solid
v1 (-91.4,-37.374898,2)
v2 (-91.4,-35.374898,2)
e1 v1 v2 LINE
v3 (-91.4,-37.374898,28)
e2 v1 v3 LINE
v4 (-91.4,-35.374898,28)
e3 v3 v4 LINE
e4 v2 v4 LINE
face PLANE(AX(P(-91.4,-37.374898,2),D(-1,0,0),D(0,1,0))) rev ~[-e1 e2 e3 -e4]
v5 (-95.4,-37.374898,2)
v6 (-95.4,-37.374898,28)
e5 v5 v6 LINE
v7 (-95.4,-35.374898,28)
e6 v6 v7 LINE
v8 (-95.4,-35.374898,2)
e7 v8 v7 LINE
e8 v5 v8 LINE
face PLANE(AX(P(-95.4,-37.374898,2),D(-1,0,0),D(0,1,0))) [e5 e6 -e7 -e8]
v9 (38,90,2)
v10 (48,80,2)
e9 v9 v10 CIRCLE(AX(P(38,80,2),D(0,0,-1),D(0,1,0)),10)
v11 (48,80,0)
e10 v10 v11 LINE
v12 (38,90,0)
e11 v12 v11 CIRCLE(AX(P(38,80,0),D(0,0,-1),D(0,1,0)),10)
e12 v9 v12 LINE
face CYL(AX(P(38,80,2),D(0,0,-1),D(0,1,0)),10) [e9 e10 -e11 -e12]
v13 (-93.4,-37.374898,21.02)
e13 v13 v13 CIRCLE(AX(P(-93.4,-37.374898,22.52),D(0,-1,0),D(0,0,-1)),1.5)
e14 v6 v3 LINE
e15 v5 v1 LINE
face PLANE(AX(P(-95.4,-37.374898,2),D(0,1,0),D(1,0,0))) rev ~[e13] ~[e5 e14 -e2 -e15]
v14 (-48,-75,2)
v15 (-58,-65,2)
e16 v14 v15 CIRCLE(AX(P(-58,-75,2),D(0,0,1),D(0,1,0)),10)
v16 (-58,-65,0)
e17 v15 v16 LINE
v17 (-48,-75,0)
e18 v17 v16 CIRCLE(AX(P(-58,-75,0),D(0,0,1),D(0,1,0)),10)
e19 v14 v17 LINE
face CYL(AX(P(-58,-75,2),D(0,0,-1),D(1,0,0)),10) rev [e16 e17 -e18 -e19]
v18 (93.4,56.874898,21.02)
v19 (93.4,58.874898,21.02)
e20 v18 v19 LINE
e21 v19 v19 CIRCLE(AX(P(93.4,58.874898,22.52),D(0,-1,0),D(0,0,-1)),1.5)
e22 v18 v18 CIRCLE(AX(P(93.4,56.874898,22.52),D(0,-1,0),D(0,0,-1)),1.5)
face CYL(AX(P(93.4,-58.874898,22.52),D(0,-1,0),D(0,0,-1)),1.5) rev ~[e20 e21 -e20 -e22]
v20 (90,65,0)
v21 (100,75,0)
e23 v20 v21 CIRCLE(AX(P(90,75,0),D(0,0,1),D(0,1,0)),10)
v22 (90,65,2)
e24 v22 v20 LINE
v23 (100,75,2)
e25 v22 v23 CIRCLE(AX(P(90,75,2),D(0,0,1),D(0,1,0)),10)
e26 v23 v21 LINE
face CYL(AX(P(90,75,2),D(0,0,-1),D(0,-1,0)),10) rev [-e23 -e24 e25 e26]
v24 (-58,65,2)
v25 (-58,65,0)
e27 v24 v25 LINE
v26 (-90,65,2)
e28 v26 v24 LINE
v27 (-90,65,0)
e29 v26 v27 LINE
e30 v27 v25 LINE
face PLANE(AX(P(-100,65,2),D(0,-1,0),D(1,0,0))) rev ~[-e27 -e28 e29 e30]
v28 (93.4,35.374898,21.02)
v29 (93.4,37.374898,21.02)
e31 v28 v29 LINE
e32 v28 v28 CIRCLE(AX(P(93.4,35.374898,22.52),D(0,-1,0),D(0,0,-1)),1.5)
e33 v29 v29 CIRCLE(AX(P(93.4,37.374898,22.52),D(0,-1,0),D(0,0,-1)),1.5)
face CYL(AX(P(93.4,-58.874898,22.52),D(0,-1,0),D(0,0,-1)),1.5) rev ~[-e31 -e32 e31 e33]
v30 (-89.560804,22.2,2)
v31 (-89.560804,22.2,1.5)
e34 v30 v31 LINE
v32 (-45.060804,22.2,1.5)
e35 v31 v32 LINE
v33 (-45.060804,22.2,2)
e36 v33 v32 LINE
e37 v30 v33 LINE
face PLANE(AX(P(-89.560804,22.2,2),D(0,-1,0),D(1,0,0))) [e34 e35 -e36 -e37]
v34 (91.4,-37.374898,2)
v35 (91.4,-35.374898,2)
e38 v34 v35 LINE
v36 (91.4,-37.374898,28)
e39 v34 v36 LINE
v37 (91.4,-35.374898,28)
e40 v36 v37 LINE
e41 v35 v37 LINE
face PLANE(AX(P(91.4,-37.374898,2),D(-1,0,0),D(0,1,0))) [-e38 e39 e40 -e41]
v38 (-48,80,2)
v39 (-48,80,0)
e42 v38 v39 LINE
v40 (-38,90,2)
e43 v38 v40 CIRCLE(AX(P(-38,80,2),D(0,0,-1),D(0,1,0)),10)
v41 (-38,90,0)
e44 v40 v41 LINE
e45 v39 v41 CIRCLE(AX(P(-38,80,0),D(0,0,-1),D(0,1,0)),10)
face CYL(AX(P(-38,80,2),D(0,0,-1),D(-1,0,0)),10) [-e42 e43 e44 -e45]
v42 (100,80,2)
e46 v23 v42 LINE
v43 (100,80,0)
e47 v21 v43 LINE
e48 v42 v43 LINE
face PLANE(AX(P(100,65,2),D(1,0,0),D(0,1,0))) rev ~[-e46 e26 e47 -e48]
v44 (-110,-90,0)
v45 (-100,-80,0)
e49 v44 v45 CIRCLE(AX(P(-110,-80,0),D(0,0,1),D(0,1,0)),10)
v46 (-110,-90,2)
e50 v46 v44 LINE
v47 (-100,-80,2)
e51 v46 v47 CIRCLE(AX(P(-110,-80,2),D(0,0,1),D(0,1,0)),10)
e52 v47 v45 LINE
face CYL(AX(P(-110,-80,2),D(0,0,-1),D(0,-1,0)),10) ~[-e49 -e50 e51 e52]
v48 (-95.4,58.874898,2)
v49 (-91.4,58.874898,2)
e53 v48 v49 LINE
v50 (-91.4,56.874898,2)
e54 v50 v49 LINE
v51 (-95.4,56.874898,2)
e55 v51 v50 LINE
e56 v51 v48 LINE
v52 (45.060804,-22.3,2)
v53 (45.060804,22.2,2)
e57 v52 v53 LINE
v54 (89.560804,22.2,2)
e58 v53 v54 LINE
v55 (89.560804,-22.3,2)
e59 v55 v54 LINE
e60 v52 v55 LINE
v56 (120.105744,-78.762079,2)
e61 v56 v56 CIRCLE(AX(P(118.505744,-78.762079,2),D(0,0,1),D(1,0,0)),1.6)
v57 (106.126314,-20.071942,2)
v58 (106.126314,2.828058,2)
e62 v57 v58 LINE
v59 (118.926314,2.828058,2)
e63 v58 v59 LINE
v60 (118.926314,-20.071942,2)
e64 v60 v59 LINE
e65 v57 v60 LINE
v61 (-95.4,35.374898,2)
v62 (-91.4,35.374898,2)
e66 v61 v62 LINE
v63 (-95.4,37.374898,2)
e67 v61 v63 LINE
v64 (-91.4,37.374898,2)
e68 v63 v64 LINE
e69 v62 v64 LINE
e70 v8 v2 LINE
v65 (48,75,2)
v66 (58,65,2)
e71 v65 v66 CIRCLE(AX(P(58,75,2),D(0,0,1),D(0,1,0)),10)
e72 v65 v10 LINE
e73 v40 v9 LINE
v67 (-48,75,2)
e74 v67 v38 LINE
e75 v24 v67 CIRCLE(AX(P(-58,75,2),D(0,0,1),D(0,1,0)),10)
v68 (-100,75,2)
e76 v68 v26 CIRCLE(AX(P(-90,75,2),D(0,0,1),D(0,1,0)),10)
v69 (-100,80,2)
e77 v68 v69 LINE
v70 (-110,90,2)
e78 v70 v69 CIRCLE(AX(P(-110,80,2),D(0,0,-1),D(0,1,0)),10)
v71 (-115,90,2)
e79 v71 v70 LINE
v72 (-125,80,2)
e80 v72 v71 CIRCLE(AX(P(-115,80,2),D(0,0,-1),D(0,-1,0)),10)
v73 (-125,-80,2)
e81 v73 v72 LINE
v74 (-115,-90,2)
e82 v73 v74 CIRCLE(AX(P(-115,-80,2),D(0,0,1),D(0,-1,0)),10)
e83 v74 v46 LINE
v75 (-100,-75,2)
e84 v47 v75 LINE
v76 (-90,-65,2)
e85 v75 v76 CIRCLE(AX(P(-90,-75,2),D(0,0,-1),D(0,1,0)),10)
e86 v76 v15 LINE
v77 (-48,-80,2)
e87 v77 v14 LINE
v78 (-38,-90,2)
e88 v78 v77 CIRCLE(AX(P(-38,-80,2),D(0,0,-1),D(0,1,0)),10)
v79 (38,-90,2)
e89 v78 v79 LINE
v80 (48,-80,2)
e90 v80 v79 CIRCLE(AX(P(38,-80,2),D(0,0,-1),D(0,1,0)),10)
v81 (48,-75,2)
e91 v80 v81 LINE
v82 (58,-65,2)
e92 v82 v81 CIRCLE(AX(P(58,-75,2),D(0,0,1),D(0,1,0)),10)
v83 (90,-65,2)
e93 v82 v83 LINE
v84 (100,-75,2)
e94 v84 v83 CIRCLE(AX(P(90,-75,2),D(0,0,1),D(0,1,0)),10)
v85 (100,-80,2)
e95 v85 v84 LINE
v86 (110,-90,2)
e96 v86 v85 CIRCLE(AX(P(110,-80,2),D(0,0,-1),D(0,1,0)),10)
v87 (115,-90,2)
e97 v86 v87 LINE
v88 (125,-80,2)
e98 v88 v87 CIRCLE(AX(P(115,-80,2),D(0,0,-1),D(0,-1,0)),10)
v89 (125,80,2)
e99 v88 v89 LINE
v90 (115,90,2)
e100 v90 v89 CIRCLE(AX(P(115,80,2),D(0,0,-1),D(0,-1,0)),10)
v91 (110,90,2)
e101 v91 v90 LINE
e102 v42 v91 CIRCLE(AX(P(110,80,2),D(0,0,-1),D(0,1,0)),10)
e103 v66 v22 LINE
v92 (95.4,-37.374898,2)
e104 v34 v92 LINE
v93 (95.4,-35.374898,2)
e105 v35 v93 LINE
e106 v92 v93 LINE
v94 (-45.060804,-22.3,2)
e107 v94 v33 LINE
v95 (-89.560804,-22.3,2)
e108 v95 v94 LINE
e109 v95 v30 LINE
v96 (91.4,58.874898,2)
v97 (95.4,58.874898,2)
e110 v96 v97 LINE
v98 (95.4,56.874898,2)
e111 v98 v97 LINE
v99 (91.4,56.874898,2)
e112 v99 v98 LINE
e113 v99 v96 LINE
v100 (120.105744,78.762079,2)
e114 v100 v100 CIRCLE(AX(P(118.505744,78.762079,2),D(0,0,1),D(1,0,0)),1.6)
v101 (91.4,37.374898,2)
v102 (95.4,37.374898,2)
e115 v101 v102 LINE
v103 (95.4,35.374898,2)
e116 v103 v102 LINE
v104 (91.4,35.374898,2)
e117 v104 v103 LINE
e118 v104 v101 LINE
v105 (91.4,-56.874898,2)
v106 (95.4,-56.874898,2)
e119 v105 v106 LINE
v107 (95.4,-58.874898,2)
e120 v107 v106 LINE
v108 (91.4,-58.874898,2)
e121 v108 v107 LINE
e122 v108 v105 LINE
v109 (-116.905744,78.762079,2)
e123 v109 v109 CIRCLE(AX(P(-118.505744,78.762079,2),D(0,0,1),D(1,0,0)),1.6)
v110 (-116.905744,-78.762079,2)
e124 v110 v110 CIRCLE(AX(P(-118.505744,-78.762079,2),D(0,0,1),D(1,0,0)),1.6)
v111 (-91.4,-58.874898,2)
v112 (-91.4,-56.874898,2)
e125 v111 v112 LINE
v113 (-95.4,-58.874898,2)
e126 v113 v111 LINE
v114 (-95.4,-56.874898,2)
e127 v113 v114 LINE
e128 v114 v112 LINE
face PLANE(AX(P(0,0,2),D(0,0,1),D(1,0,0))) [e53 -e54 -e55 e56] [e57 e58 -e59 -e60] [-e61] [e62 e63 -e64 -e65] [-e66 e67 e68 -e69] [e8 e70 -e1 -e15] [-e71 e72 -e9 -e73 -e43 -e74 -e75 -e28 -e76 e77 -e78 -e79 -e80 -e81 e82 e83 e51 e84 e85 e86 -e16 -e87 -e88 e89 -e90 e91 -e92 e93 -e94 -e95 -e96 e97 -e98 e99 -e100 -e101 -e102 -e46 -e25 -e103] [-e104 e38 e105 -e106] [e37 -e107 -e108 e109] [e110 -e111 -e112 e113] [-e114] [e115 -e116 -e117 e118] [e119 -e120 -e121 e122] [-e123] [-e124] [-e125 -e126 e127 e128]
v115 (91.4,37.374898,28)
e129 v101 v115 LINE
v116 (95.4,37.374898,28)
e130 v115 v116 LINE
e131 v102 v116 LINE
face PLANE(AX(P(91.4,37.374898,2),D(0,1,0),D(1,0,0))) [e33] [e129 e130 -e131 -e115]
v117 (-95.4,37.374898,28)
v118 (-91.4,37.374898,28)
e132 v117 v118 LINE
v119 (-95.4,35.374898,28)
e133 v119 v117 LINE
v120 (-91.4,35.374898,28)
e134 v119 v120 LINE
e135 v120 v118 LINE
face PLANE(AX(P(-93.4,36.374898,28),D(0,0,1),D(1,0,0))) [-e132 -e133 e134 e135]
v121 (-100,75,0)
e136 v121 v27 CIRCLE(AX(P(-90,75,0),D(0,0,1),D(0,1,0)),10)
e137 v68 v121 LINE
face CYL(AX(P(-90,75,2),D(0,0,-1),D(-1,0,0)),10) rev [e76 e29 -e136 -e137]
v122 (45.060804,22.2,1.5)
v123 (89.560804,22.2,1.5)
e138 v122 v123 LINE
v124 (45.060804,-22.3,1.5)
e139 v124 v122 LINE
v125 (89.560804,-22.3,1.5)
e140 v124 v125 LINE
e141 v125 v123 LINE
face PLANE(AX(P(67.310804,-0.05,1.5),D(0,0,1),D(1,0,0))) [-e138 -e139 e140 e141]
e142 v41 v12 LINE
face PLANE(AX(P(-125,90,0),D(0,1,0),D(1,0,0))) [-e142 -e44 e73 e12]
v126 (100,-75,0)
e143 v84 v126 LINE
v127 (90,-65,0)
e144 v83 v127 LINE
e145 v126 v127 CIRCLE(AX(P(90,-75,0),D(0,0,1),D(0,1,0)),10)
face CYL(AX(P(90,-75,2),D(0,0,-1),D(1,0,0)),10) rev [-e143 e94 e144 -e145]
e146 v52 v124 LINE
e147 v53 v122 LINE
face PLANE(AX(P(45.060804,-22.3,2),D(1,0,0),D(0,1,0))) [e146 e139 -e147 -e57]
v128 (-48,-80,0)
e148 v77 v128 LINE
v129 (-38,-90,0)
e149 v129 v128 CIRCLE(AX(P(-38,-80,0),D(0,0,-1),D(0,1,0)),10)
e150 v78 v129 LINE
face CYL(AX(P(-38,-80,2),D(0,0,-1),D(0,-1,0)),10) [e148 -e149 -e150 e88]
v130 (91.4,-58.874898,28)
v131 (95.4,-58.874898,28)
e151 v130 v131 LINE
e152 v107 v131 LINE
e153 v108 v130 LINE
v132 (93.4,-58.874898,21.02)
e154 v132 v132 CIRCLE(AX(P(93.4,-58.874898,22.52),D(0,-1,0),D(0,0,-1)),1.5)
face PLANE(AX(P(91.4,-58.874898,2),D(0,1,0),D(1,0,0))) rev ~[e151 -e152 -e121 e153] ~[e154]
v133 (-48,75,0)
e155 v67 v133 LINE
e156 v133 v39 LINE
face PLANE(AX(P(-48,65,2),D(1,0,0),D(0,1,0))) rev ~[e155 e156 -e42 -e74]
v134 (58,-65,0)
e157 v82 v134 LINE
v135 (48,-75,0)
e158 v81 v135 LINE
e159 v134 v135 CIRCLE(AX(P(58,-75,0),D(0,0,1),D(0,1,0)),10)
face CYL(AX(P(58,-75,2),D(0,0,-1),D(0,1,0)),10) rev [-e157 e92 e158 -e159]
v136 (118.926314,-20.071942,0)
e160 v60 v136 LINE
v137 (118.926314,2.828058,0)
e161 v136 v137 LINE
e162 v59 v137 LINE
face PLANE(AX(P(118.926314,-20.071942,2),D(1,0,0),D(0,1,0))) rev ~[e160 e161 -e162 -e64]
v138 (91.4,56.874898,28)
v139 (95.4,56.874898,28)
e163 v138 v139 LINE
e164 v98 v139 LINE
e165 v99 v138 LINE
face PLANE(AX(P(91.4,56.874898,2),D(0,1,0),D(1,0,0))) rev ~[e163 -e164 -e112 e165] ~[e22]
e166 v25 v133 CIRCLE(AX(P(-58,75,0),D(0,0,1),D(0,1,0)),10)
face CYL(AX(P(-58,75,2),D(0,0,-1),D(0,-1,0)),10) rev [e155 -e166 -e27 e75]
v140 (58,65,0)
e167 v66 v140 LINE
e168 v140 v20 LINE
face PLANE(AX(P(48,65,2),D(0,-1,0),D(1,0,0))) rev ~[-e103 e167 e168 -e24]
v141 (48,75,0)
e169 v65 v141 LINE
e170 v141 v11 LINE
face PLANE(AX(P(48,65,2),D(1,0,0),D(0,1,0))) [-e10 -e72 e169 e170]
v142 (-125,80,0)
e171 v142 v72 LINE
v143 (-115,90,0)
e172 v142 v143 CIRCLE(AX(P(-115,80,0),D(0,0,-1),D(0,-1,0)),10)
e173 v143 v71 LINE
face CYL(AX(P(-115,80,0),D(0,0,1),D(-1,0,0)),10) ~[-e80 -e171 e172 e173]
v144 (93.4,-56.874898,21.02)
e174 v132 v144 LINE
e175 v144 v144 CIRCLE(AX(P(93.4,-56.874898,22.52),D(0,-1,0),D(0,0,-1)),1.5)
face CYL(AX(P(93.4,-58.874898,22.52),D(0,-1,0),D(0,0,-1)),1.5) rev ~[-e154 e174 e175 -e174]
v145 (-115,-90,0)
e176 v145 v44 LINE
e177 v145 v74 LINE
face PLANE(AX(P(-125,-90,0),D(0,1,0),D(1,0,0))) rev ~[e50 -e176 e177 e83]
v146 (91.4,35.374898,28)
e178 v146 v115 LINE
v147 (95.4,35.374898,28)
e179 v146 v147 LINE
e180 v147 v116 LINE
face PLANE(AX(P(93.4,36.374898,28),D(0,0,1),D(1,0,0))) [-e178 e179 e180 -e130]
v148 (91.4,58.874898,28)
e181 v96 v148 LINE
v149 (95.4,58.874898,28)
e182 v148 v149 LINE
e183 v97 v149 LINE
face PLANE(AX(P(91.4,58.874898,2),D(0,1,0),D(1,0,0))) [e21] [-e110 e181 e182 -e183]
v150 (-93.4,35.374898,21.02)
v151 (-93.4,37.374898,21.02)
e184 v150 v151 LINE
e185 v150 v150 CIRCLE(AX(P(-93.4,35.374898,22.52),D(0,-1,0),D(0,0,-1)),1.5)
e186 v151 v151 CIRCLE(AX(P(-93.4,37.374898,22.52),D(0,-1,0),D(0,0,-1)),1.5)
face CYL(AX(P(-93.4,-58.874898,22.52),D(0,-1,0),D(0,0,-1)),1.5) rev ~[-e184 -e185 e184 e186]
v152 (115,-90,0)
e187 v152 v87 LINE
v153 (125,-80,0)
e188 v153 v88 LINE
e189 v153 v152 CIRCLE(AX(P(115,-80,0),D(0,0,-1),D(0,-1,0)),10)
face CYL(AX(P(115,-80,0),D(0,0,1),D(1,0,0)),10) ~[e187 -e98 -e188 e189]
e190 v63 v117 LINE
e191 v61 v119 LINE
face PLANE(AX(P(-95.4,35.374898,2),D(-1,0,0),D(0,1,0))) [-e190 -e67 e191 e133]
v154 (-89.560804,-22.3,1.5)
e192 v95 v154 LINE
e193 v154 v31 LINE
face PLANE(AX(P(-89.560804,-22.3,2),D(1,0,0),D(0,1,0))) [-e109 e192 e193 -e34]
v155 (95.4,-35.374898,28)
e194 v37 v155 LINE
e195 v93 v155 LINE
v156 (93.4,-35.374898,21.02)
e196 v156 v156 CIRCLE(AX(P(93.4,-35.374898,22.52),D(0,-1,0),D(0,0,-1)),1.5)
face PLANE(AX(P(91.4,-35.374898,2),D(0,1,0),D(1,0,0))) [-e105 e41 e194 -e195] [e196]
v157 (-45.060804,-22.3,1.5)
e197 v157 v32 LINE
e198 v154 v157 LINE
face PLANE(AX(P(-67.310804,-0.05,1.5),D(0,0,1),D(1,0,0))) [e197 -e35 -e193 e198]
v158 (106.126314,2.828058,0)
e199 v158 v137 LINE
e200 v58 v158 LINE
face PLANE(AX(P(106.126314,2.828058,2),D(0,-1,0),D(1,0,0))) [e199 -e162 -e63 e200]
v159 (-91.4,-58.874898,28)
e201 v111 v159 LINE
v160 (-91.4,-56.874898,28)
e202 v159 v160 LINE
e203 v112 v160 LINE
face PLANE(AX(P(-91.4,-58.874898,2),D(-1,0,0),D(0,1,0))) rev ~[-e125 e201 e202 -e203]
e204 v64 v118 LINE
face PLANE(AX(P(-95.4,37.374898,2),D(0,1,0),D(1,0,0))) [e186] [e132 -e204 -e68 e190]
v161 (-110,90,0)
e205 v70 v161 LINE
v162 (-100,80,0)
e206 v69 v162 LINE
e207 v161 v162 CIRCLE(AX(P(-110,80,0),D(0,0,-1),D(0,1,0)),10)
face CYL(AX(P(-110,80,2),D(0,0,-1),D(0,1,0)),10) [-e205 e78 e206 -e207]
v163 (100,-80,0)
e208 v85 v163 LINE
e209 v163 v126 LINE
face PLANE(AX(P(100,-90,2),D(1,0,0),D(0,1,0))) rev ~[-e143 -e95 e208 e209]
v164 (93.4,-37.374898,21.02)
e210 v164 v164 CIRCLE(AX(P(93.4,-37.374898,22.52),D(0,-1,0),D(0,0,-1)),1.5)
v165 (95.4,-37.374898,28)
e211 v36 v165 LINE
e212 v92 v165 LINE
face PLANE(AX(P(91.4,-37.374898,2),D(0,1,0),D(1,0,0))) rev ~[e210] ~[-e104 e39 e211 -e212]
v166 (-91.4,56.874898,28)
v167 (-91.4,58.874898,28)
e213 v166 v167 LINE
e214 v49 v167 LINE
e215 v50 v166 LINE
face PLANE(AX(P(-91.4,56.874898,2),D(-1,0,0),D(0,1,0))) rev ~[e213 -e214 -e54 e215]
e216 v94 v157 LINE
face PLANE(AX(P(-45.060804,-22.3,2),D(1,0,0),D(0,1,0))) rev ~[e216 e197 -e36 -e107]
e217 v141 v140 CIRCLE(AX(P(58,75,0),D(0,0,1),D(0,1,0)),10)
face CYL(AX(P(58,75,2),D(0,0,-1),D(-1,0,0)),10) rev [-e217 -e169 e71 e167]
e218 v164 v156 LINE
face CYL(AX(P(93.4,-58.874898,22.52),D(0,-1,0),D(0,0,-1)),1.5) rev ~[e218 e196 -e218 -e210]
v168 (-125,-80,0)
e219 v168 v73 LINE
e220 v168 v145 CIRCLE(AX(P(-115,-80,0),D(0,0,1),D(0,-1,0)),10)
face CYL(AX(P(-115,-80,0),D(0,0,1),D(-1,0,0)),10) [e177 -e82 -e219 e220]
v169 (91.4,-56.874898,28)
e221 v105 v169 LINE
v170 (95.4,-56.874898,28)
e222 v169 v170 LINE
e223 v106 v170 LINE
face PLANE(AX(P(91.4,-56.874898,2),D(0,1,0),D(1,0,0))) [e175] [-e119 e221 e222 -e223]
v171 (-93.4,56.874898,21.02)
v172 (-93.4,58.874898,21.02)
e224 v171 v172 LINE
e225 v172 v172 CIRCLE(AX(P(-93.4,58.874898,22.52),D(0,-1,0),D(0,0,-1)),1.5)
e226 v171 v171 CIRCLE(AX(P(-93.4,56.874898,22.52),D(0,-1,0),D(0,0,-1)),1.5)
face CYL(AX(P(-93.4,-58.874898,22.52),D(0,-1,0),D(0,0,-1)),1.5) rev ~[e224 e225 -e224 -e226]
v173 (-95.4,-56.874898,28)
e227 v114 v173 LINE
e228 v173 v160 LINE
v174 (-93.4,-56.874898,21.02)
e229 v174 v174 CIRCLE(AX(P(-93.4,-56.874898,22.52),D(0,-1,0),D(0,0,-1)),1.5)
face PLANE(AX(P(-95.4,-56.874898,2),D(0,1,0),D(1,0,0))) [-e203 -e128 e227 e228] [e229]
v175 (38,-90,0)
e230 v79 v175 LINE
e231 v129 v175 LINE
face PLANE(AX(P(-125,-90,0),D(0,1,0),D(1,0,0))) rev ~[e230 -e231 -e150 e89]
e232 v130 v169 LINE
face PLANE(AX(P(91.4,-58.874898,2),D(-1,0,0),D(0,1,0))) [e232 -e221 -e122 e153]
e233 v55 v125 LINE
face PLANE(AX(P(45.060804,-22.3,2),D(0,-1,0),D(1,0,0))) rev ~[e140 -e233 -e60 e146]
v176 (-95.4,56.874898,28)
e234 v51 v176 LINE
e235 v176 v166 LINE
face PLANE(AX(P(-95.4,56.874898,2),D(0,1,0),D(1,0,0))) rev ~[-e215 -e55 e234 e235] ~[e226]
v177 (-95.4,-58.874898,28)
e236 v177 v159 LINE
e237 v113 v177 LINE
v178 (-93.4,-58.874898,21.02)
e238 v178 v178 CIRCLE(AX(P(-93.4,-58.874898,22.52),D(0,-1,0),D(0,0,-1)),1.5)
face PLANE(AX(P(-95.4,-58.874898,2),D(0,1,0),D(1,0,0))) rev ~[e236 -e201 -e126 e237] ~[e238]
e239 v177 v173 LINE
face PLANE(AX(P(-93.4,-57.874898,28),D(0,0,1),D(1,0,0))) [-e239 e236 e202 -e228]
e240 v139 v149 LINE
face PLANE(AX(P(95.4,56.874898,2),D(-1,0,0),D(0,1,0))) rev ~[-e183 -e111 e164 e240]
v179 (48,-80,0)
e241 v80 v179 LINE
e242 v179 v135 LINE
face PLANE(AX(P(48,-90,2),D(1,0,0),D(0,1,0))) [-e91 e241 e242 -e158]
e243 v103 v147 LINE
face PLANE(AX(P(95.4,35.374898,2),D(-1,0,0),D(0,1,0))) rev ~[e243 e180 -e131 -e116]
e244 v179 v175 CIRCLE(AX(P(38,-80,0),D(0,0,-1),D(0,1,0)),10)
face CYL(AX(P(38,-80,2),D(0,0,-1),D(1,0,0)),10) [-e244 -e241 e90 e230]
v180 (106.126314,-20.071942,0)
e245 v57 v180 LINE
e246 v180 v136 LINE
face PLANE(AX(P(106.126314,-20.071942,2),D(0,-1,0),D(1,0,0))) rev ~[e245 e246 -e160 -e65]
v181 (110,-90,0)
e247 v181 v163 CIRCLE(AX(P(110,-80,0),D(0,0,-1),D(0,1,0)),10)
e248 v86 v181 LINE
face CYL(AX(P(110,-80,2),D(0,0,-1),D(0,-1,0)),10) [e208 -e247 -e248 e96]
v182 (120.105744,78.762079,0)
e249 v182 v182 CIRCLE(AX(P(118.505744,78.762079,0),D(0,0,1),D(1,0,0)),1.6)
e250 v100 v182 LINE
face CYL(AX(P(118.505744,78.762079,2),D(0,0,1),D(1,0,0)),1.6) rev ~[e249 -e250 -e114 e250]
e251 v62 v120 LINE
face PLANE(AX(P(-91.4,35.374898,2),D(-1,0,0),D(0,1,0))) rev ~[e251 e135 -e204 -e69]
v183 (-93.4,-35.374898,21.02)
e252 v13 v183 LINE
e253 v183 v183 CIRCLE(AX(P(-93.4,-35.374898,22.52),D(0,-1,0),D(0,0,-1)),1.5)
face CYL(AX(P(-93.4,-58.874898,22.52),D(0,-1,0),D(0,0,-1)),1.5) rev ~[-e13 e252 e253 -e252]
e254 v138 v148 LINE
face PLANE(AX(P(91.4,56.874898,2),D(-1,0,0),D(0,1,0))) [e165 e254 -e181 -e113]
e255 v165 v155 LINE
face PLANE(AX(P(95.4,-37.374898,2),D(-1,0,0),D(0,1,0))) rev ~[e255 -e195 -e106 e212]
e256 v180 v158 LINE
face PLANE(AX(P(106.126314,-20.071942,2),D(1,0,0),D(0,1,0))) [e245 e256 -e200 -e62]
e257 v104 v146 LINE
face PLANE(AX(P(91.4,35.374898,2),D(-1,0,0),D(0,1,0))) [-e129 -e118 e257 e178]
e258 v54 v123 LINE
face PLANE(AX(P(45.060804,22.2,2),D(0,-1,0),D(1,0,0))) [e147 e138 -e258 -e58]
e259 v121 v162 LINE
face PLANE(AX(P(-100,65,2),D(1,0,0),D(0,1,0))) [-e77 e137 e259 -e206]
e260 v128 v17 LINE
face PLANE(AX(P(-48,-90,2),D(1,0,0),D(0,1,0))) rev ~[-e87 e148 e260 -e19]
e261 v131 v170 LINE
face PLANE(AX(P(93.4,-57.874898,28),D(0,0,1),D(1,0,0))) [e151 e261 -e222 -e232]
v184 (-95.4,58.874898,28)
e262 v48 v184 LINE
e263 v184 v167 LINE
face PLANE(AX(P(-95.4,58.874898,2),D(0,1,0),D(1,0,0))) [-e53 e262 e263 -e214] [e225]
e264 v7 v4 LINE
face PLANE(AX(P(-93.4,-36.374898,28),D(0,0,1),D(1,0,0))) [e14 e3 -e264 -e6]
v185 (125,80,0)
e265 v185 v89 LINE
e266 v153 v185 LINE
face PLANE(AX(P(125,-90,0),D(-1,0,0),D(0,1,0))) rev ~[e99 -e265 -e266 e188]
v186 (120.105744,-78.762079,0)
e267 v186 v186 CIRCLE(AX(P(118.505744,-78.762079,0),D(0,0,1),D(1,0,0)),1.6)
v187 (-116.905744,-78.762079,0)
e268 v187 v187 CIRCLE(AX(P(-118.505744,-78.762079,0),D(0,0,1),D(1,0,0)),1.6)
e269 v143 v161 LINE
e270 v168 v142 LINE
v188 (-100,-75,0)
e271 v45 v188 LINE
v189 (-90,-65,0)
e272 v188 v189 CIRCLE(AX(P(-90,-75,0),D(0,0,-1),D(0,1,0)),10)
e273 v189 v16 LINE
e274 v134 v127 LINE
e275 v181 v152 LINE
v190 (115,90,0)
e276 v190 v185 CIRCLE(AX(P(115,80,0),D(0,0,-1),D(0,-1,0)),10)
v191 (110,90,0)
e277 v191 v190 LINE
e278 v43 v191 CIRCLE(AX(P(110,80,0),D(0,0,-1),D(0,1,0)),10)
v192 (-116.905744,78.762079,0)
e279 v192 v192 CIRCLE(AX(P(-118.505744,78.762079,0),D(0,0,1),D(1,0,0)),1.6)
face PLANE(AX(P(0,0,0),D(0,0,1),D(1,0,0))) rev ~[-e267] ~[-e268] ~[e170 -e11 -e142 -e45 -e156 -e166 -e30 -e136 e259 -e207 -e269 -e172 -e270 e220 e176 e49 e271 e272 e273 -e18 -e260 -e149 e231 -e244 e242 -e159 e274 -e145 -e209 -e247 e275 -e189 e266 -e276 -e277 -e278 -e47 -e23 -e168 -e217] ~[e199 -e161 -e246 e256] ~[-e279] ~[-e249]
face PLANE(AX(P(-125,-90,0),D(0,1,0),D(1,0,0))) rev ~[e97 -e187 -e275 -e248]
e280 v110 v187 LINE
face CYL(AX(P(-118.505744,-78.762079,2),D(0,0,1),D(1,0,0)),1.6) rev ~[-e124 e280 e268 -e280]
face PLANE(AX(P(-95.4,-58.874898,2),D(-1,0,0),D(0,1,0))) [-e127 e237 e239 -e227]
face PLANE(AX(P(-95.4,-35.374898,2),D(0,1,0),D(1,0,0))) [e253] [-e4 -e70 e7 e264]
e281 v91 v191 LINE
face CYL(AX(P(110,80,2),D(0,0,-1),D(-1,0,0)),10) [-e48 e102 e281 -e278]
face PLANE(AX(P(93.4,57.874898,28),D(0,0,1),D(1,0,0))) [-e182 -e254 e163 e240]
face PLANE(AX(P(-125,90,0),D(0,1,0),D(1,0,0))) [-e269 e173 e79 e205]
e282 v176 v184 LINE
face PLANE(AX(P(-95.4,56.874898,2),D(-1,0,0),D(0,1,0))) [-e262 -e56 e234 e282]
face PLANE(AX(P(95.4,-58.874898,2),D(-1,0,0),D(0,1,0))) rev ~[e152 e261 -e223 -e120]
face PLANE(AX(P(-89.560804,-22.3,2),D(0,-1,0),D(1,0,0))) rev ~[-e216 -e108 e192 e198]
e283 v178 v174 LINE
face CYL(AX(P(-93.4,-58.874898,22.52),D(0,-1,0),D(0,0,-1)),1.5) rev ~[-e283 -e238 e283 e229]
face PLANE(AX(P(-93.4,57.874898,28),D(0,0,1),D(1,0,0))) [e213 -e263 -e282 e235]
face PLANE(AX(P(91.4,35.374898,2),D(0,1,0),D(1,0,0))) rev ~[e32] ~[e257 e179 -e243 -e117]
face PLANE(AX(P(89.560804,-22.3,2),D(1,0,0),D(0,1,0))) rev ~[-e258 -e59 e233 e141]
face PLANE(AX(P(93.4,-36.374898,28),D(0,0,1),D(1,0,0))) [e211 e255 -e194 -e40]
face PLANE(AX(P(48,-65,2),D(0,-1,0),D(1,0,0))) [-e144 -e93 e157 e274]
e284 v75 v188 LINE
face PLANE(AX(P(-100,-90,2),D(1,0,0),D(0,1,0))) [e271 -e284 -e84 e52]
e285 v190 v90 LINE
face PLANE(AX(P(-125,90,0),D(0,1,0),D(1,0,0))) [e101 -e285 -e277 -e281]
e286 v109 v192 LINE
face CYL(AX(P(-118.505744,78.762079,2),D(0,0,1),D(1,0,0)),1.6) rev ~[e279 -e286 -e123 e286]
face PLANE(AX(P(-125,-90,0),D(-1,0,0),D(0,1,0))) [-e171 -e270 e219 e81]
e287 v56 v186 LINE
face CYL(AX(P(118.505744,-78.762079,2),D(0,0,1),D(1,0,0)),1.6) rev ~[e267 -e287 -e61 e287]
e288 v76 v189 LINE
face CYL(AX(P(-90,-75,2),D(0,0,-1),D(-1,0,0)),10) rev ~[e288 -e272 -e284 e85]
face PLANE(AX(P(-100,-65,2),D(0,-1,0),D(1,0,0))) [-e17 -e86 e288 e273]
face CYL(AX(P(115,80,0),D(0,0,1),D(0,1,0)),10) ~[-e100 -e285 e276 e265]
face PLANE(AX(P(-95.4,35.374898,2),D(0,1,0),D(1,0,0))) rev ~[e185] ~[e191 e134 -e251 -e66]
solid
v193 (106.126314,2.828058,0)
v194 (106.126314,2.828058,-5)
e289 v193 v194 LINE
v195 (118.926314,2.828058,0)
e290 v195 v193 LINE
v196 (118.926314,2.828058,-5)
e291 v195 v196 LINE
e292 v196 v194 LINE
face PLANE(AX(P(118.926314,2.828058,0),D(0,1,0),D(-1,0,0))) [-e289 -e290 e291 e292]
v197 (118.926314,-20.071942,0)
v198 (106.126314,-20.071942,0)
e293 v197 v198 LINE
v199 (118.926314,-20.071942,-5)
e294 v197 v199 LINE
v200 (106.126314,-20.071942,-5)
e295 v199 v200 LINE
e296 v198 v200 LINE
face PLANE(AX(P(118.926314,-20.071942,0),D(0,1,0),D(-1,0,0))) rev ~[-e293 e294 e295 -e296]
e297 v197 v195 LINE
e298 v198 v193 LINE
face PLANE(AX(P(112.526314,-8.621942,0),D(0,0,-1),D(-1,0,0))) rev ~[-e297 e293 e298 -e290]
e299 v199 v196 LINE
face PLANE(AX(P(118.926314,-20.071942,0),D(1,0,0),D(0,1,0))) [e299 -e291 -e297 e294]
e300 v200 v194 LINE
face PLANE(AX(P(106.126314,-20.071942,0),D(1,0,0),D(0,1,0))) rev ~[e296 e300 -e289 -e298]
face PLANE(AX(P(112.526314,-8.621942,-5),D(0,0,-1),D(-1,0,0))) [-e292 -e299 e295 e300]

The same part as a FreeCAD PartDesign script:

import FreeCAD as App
import Part
import Sketcher
Q = App.Units.Quantity


def edges_at(feature, points):
    """Names of the edges that pass closest to the given points."""
    edges = feature.Shape.Edges
    near = lambda p: min(range(len(edges)), key=lambda i: edges[i].distToShape(Part.Vertex(*p))[0])
    return sorted({f"Edge{near(p) + 1}" for p in points})

doc = App.newDocument("Part")
params = doc.addObject("Spreadsheet::Sheet", "Params")
for row, (alias, value) in enumerate([
    ("sketch1_width", "250 mm"),
    ("sketch1_height", "180 mm"),
    ("pad1_length", "2 mm"),
    ("sketch2_width", "52 mm"),
    ("sketch2_height", "25 mm"),
    ("fillet_radius", "10 mm"),
    ("sketch3_width", "12.8 mm"),
    ("sketch3_height", "22.9 mm"),
    ("pocket2_length", "2 mm"),
    ("sketch4_width", "44.5 mm"),
    ("pocket3_length", "0.5 mm"),
    ("sketch5_diameter", "3.2 mm"),
    ("sketch6_width", "4 mm"),
    ("sketch6_height", "2 mm"),
    ("pad2_length", "26 mm"),
    ("sketch7_diameter", "3 mm"),
    ("sketch8_width", "12.8 mm"),
    ("sketch8_height", "22.9 mm"),
    ("pad3_length", "5 mm"),
], start=1):
    params.set(f"A{row}", alias)
    params.set(f"B{row}", "=" + value)
    params.setAlias(f"B{row}", alias)

body = doc.addObject("PartDesign::Body", "Body")

sketch1 = body.newObject("Sketcher::SketchObject", "Sketch")
sketch1.AttachmentSupport = (doc.getObject("XY_Plane"), [""])
sketch1.MapMode = "FlatFace"
sketch1.addGeometry(Part.LineSegment(App.Vector(-125, 90, 0), App.Vector(-125, -90, 0)), False)
sketch1.addGeometry(Part.LineSegment(App.Vector(-125, -90, 0), App.Vector(125, -90, 0)), False)
sketch1.addGeometry(Part.LineSegment(App.Vector(125, -90, 0), App.Vector(125, 90, 0)), False)
sketch1.addGeometry(Part.LineSegment(App.Vector(125, 90, 0), App.Vector(-125, 90, 0)), False)
sketch1.addConstraint(Sketcher.Constraint("Coincident", 0, 2, 1, 1))
sketch1.addConstraint(Sketcher.Constraint("Coincident", 1, 2, 2, 1))
sketch1.addConstraint(Sketcher.Constraint("Coincident", 2, 2, 3, 1))
sketch1.addConstraint(Sketcher.Constraint("Coincident", 3, 2, 0, 1))
sketch1.addConstraint(Sketcher.Constraint("Vertical", 0))
sketch1.addConstraint(Sketcher.Constraint("Horizontal", 1))
sketch1.addConstraint(Sketcher.Constraint("Vertical", 2))
sketch1.addConstraint(Sketcher.Constraint("Horizontal", 3))
sketch1.addConstraint(Sketcher.Constraint("Symmetric", 0, 2, 2, 2, -1, 1))
sketch1.addConstraint(Sketcher.Constraint("DistanceX", 1, 1, 1, 2, Q("250 mm")))
sketch1.addConstraint(Sketcher.Constraint("DistanceY", 0, 2, 0, 1, Q("180 mm")))
sketch1.setExpression("Constraints[9]", "Params.sketch1_width")
sketch1.setExpression("Constraints[10]", "Params.sketch1_height")
pad1 = body.newObject("PartDesign::Pad", "Pad")
pad1.Profile = sketch1
pad1.setExpression("Length", "Params.pad1_length")

sketch2 = body.newObject("Sketcher::SketchObject", "Sketch001")
sketch2.AttachmentSupport = (doc.getObject("XY_Plane"), [""])
sketch2.MapMode = "FlatFace"
sketch2.AttachmentOffset = App.Placement(App.Vector(0, 0, 2), App.Rotation())
sketch2.addGeometry(Part.LineSegment(App.Vector(-100, 90, 0), App.Vector(-100, 65, 0)), False)
sketch2.addGeometry(Part.LineSegment(App.Vector(-100, 65, 0), App.Vector(-48, 65, 0)), False)
sketch2.addGeometry(Part.LineSegment(App.Vector(-48, 65, 0), App.Vector(-48, 90, 0)), False)
sketch2.addGeometry(Part.LineSegment(App.Vector(-48, 90, 0), App.Vector(-100, 90, 0)), False)
sketch2.addGeometry(Part.LineSegment(App.Vector(-100, -65, 0), App.Vector(-100, -90, 0)), False)
sketch2.addGeometry(Part.LineSegment(App.Vector(-100, -90, 0), App.Vector(-48, -90, 0)), False)
sketch2.addGeometry(Part.LineSegment(App.Vector(-48, -90, 0), App.Vector(-48, -65, 0)), False)
sketch2.addGeometry(Part.LineSegment(App.Vector(-48, -65, 0), App.Vector(-100, -65, 0)), False)
sketch2.addGeometry(Part.LineSegment(App.Vector(48, -65, 0), App.Vector(48, -90, 0)), False)
sketch2.addGeometry(Part.LineSegment(App.Vector(48, -90, 0), App.Vector(100, -90, 0)), False)
sketch2.addGeometry(Part.LineSegment(App.Vector(100, -90, 0), App.Vector(100, -65, 0)), False)
sketch2.addGeometry(Part.LineSegment(App.Vector(100, -65, 0), App.Vector(48, -65, 0)), False)
sketch2.addGeometry(Part.LineSegment(App.Vector(48, 90, 0), App.Vector(48, 65, 0)), False)
sketch2.addGeometry(Part.LineSegment(App.Vector(48, 65, 0), App.Vector(100, 65, 0)), False)
sketch2.addGeometry(Part.LineSegment(App.Vector(100, 65, 0), App.Vector(100, 90, 0)), False)
sketch2.addGeometry(Part.LineSegment(App.Vector(100, 90, 0), App.Vector(48, 90, 0)), False)
sketch2.addConstraint(Sketcher.Constraint("Coincident", 0, 2, 1, 1))
sketch2.addConstraint(Sketcher.Constraint("Coincident", 1, 2, 2, 1))
sketch2.addConstraint(Sketcher.Constraint("Coincident", 2, 2, 3, 1))
sketch2.addConstraint(Sketcher.Constraint("Coincident", 3, 2, 0, 1))
sketch2.addConstraint(Sketcher.Constraint("Coincident", 4, 2, 5, 1))
sketch2.addConstraint(Sketcher.Constraint("Coincident", 5, 2, 6, 1))
sketch2.addConstraint(Sketcher.Constraint("Coincident", 6, 2, 7, 1))
sketch2.addConstraint(Sketcher.Constraint("Coincident", 7, 2, 4, 1))
sketch2.addConstraint(Sketcher.Constraint("Coincident", 8, 2, 9, 1))
sketch2.addConstraint(Sketcher.Constraint("Coincident", 9, 2, 10, 1))
sketch2.addConstraint(Sketcher.Constraint("Coincident", 10, 2, 11, 1))
sketch2.addConstraint(Sketcher.Constraint("Coincident", 11, 2, 8, 1))
sketch2.addConstraint(Sketcher.Constraint("Coincident", 12, 2, 13, 1))
sketch2.addConstraint(Sketcher.Constraint("Coincident", 13, 2, 14, 1))
sketch2.addConstraint(Sketcher.Constraint("Coincident", 14, 2, 15, 1))
sketch2.addConstraint(Sketcher.Constraint("Coincident", 15, 2, 12, 1))
sketch2.addConstraint(Sketcher.Constraint("Vertical", 0))
sketch2.addConstraint(Sketcher.Constraint("Horizontal", 1))
sketch2.addConstraint(Sketcher.Constraint("Vertical", 2))
sketch2.addConstraint(Sketcher.Constraint("Horizontal", 3))
sketch2.addConstraint(Sketcher.Constraint("Vertical", 4))
sketch2.addConstraint(Sketcher.Constraint("Horizontal", 5))
sketch2.addConstraint(Sketcher.Constraint("Vertical", 6))
sketch2.addConstraint(Sketcher.Constraint("Horizontal", 7))
sketch2.addConstraint(Sketcher.Constraint("Vertical", 8))
sketch2.addConstraint(Sketcher.Constraint("Horizontal", 9))
sketch2.addConstraint(Sketcher.Constraint("Vertical", 10))
sketch2.addConstraint(Sketcher.Constraint("Horizontal", 11))
sketch2.addConstraint(Sketcher.Constraint("Vertical", 12))
sketch2.addConstraint(Sketcher.Constraint("Horizontal", 13))
sketch2.addConstraint(Sketcher.Constraint("Vertical", 14))
sketch2.addConstraint(Sketcher.Constraint("Horizontal", 15))
sketch2.addConstraint(Sketcher.Constraint("Symmetric", 2, 2, 8, 2, -1, 1))
sketch2.addConstraint(Sketcher.Constraint("Symmetric", 0, 2, 10, 2, -1, 1))
sketch2.addConstraint(Sketcher.Constraint("Symmetric", 6, 2, 12, 2, -1, 1))
sketch2.addConstraint(Sketcher.Constraint("Symmetric", 4, 2, 14, 2, -1, 1))
sketch2.addConstraint(Sketcher.Constraint("Symmetric", 5, 2, 8, 2, -2))
sketch2.addConstraint(Sketcher.Constraint("Symmetric", 7, 2, 10, 2, -2))
sketch2.addConstraint(Sketcher.Constraint("DistanceX", 1, 1, 1, 2, Q("52 mm")))
sketch2.addConstraint(Sketcher.Constraint("DistanceY", 0, 2, 0, 1, Q("25 mm")))
sketch2.addConstraint(Sketcher.Constraint("DistanceX", 0, 2, -1, 1, Q("100 mm")))
sketch2.addConstraint(Sketcher.Constraint("DistanceY", -1, 1, 0, 2, Q("65 mm")))
sketch2.setExpression("Constraints[38]", "Params.sketch2_width")
sketch2.setExpression("Constraints[39]", "Params.sketch2_height")
pocket1 = body.newObject("PartDesign::Pocket", "Pocket")
pocket1.Profile = sketch2
pocket1.Type = "ThroughAll"
doc.recompute()

fillet = body.newObject("PartDesign::Fillet", "Fillet")
fillet.Base = (pocket1, edges_at(pocket1, [
    (-100, 90, 1),
    (-48, 90, 1),
    (-48, 65, 1),
    (-100, 65, 1),
    (100, 90, 1),
    (100, 65, 1),
    (48, 65, 1),
    (48, 90, 1),
    (48, -90, 1),
    (48, -65, 1),
    (100, -65, 1),
    (100, -90, 1),
    (-100, -90, 1),
    (-100, -65, 1),
    (-48, -65, 1),
    (-48, -90, 1),
    (-125, 90, 1),
    (125, 90, 1),
    (125, -90, 1),
    (-125, -90, 1),
]))
fillet.setExpression("Radius", "Params.fillet_radius")

sketch3 = body.newObject("Sketcher::SketchObject", "Sketch002")
sketch3.AttachmentSupport = (doc.getObject("XY_Plane"), [""])
sketch3.MapMode = "FlatFace"
sketch3.AttachmentOffset = App.Placement(App.Vector(0, 0, 2), App.Rotation())
sketch3.addGeometry(Part.LineSegment(App.Vector(106, 3, 0), App.Vector(106, -20, 0)), False)
sketch3.addGeometry(Part.LineSegment(App.Vector(106, -20, 0), App.Vector(119, -20, 0)), False)
sketch3.addGeometry(Part.LineSegment(App.Vector(119, -20, 0), App.Vector(119, 3, 0)), False)
sketch3.addGeometry(Part.LineSegment(App.Vector(119, 3, 0), App.Vector(106, 3, 0)), False)
sketch3.addConstraint(Sketcher.Constraint("Coincident", 0, 2, 1, 1))
sketch3.addConstraint(Sketcher.Constraint("Coincident", 1, 2, 2, 1))
sketch3.addConstraint(Sketcher.Constraint("Coincident", 2, 2, 3, 1))
sketch3.addConstraint(Sketcher.Constraint("Coincident", 3, 2, 0, 1))
sketch3.addConstraint(Sketcher.Constraint("Vertical", 0))
sketch3.addConstraint(Sketcher.Constraint("Horizontal", 1))
sketch3.addConstraint(Sketcher.Constraint("Vertical", 2))
sketch3.addConstraint(Sketcher.Constraint("Horizontal", 3))
sketch3.addConstraint(Sketcher.Constraint("DistanceX", 1, 1, 1, 2, Q("12.8 mm")))
sketch3.addConstraint(Sketcher.Constraint("DistanceY", 0, 2, 0, 1, Q("22.9 mm")))
sketch3.addConstraint(Sketcher.Constraint("DistanceY", 0, 2, -1, 1, Q("20.071942 mm")))
sketch3.addConstraint(Sketcher.Constraint("DistanceX", -1, 1, 0, 2, Q("106.126314 mm")))
sketch3.setExpression("Constraints[8]", "Params.sketch3_width")
sketch3.setExpression("Constraints[9]", "Params.sketch3_height")
pocket2 = body.newObject("PartDesign::Pocket", "Pocket001")
pocket2.Profile = sketch3
pocket2.setExpression("Length", "Params.pocket2_length")

sketch4 = body.newObject("Sketcher::SketchObject", "Sketch003")
sketch4.AttachmentSupport = (doc.getObject("XY_Plane"), [""])
sketch4.MapMode = "FlatFace"
sketch4.AttachmentOffset = App.Placement(App.Vector(0, 0, 2), App.Rotation())
sketch4.addGeometry(Part.LineSegment(App.Vector(-90, 22, 0), App.Vector(-90, -22, 0)), False)
sketch4.addGeometry(Part.LineSegment(App.Vector(-90, -22, 0), App.Vector(-45, -22, 0)), False)
sketch4.addGeometry(Part.LineSegment(App.Vector(-45, -22, 0), App.Vector(-45, 22, 0)), False)
sketch4.addGeometry(Part.LineSegment(App.Vector(-45, 22, 0), App.Vector(-90, 22, 0)), False)
sketch4.addGeometry(Part.LineSegment(App.Vector(45, 22, 0), App.Vector(45, -22, 0)), False)
sketch4.addGeometry(Part.LineSegment(App.Vector(45, -22, 0), App.Vector(90, -22, 0)), False)
sketch4.addGeometry(Part.LineSegment(App.Vector(90, -22, 0), App.Vector(90, 22, 0)), False)
sketch4.addGeometry(Part.LineSegment(App.Vector(90, 22, 0), App.Vector(45, 22, 0)), False)
sketch4.addConstraint(Sketcher.Constraint("Coincident", 0, 2, 1, 1))
sketch4.addConstraint(Sketcher.Constraint("Coincident", 1, 2, 2, 1))
sketch4.addConstraint(Sketcher.Constraint("Coincident", 2, 2, 3, 1))
sketch4.addConstraint(Sketcher.Constraint("Coincident", 3, 2, 0, 1))
sketch4.addConstraint(Sketcher.Constraint("Coincident", 4, 2, 5, 1))
sketch4.addConstraint(Sketcher.Constraint("Coincident", 5, 2, 6, 1))
sketch4.addConstraint(Sketcher.Constraint("Coincident", 6, 2, 7, 1))
sketch4.addConstraint(Sketcher.Constraint("Coincident", 7, 2, 4, 1))
sketch4.addConstraint(Sketcher.Constraint("Vertical", 0))
sketch4.addConstraint(Sketcher.Constraint("Horizontal", 1))
sketch4.addConstraint(Sketcher.Constraint("Vertical", 2))
sketch4.addConstraint(Sketcher.Constraint("Horizontal", 3))
sketch4.addConstraint(Sketcher.Constraint("Vertical", 4))
sketch4.addConstraint(Sketcher.Constraint("Horizontal", 5))
sketch4.addConstraint(Sketcher.Constraint("Vertical", 6))
sketch4.addConstraint(Sketcher.Constraint("Horizontal", 7))
sketch4.addConstraint(Sketcher.Constraint("Symmetric", 1, 2, 4, 2, -2))
sketch4.addConstraint(Sketcher.Constraint("Symmetric", 3, 2, 6, 2, -2))
sketch4.addConstraint(Sketcher.Constraint("Equal", 7, 0))
sketch4.addConstraint(Sketcher.Constraint("DistanceX", 1, 1, 1, 2, Q("44.5 mm")))
sketch4.addConstraint(Sketcher.Constraint("DistanceY", 0, 2, -1, 1, Q("22.3 mm")))
sketch4.addConstraint(Sketcher.Constraint("DistanceX", 1, 2, 4, 2, Q("90.121609 mm")))
sketch4.setExpression("Constraints[19]", "Params.sketch4_width")
pocket3 = body.newObject("PartDesign::Pocket", "Pocket002")
pocket3.Profile = sketch4
pocket3.setExpression("Length", "Params.pocket3_length")

sketch5 = body.newObject("Sketcher::SketchObject", "Sketch004")
sketch5.AttachmentSupport = (doc.getObject("XY_Plane"), [""])
sketch5.MapMode = "FlatFace"
sketch5.AttachmentOffset = App.Placement(App.Vector(0, 0, 2), App.Rotation())
sketch5.addGeometry(Part.Circle(App.Vector(-118.5, 78.8, 0), App.Vector(0, 0, 1), 1.6), False)
sketch5.addGeometry(Part.Circle(App.Vector(118.5, 78.8, 0), App.Vector(0, 0, 1), 1.6), False)
sketch5.addGeometry(Part.Circle(App.Vector(118.5, -78.8, 0), App.Vector(0, 0, 1), 1.6), False)
sketch5.addGeometry(Part.Circle(App.Vector(-118.5, -78.8, 0), App.Vector(0, 0, 1), 1.6), False)
sketch5.addConstraint(Sketcher.Constraint("Equal", 0, 1))
sketch5.addConstraint(Sketcher.Constraint("Equal", 1, 2))
sketch5.addConstraint(Sketcher.Constraint("Equal", 2, 3))
sketch5.addConstraint(Sketcher.Constraint("Symmetric", 0, 3, 2, 3, -1, 1))
sketch5.addConstraint(Sketcher.Constraint("Symmetric", 1, 3, 3, 3, -1, 1))
sketch5.addConstraint(Sketcher.Constraint("Symmetric", 0, 3, 1, 3, -2))
sketch5.addConstraint(Sketcher.Constraint("Diameter", 0, Q("3.2 mm")))
sketch5.addConstraint(Sketcher.Constraint("DistanceY", -1, 1, 0, 3, Q("78.762079 mm")))
sketch5.addConstraint(Sketcher.Constraint("DistanceX", 0, 3, -1, 1, Q("118.505744 mm")))
sketch5.setExpression("Constraints[6]", "Params.sketch5_diameter")
pocket4 = body.newObject("PartDesign::Pocket", "Pocket003")
pocket4.Profile = sketch5
pocket4.Type = "ThroughAll"

sketch6 = body.newObject("Sketcher::SketchObject", "Sketch005")
sketch6.AttachmentSupport = (doc.getObject("XY_Plane"), [""])
sketch6.MapMode = "FlatFace"
sketch6.AttachmentOffset = App.Placement(App.Vector(0, 0, 2), App.Rotation())
sketch6.addGeometry(Part.LineSegment(App.Vector(-95.4, -56.9, 0), App.Vector(-95.4, -58.9, 0)), False)
sketch6.addGeometry(Part.LineSegment(App.Vector(-95.4, -58.9, 0), App.Vector(-91.4, -58.9, 0)), False)
sketch6.addGeometry(Part.LineSegment(App.Vector(-91.4, -58.9, 0), App.Vector(-91.4, -56.9, 0)), False)
sketch6.addGeometry(Part.LineSegment(App.Vector(-91.4, -56.9, 0), App.Vector(-95.4, -56.9, 0)), False)
sketch6.addGeometry(Part.LineSegment(App.Vector(-95.4, -35.4, 0), App.Vector(-95.4, -37.4, 0)), False)
sketch6.addGeometry(Part.LineSegment(App.Vector(-95.4, -37.4, 0), App.Vector(-91.4, -37.4, 0)), False)
sketch6.addGeometry(Part.LineSegment(App.Vector(-91.4, -37.4, 0), App.Vector(-91.4, -35.4, 0)), False)
sketch6.addGeometry(Part.LineSegment(App.Vector(-91.4, -35.4, 0), App.Vector(-95.4, -35.4, 0)), False)
sketch6.addGeometry(Part.LineSegment(App.Vector(-95.4, 37.4, 0), App.Vector(-95.4, 35.4, 0)), False)
sketch6.addGeometry(Part.LineSegment(App.Vector(-95.4, 35.4, 0), App.Vector(-91.4, 35.4, 0)), False)
sketch6.addGeometry(Part.LineSegment(App.Vector(-91.4, 35.4, 0), App.Vector(-91.4, 37.4, 0)), False)
sketch6.addGeometry(Part.LineSegment(App.Vector(-91.4, 37.4, 0), App.Vector(-95.4, 37.4, 0)), False)
sketch6.addGeometry(Part.LineSegment(App.Vector(-95.4, 58.9, 0), App.Vector(-95.4, 56.9, 0)), False)
sketch6.addGeometry(Part.LineSegment(App.Vector(-95.4, 56.9, 0), App.Vector(-91.4, 56.9, 0)), False)
sketch6.addGeometry(Part.LineSegment(App.Vector(-91.4, 56.9, 0), App.Vector(-91.4, 58.9, 0)), False)
sketch6.addGeometry(Part.LineSegment(App.Vector(-91.4, 58.9, 0), App.Vector(-95.4, 58.9, 0)), False)
sketch6.addGeometry(Part.LineSegment(App.Vector(91.4, 58.9, 0), App.Vector(91.4, 56.9, 0)), False)
sketch6.addGeometry(Part.LineSegment(App.Vector(91.4, 56.9, 0), App.Vector(95.4, 56.9, 0)), False)
sketch6.addGeometry(Part.LineSegment(App.Vector(95.4, 56.9, 0), App.Vector(95.4, 58.9, 0)), False)
sketch6.addGeometry(Part.LineSegment(App.Vector(95.4, 58.9, 0), App.Vector(91.4, 58.9, 0)), False)
sketch6.addGeometry(Part.LineSegment(App.Vector(91.4, 37.4, 0), App.Vector(91.4, 35.4, 0)), False)
sketch6.addGeometry(Part.LineSegment(App.Vector(91.4, 35.4, 0), App.Vector(95.4, 35.4, 0)), False)
sketch6.addGeometry(Part.LineSegment(App.Vector(95.4, 35.4, 0), App.Vector(95.4, 37.4, 0)), False)
sketch6.addGeometry(Part.LineSegment(App.Vector(95.4, 37.4, 0), App.Vector(91.4, 37.4, 0)), False)
sketch6.addGeometry(Part.LineSegment(App.Vector(91.4, -35.4, 0), App.Vector(91.4, -37.4, 0)), False)
sketch6.addGeometry(Part.LineSegment(App.Vector(91.4, -37.4, 0), App.Vector(95.4, -37.4, 0)), False)
sketch6.addGeometry(Part.LineSegment(App.Vector(95.4, -37.4, 0), App.Vector(95.4, -35.4, 0)), False)
sketch6.addGeometry(Part.LineSegment(App.Vector(95.4, -35.4, 0), App.Vector(91.4, -35.4, 0)), False)
sketch6.addGeometry(Part.LineSegment(App.Vector(91.4, -56.9, 0), App.Vector(91.4, -58.9, 0)), False)
sketch6.addGeometry(Part.LineSegment(App.Vector(91.4, -58.9, 0), App.Vector(95.4, -58.9, 0)), False)
sketch6.addGeometry(Part.LineSegment(App.Vector(95.4, -58.9, 0), App.Vector(95.4, -56.9, 0)), False)
sketch6.addGeometry(Part.LineSegment(App.Vector(95.4, -56.9, 0), App.Vector(91.4, -56.9, 0)), False)
sketch6.addConstraint(Sketcher.Constraint("Coincident", 0, 2, 1, 1))
sketch6.addConstraint(Sketcher.Constraint("Coincident", 1, 2, 2, 1))
sketch6.addConstraint(Sketcher.Constraint("Coincident", 2, 2, 3, 1))
sketch6.addConstraint(Sketcher.Constraint("Coincident", 3, 2, 0, 1))
sketch6.addConstraint(Sketcher.Constraint("Coincident", 4, 2, 5, 1))
sketch6.addConstraint(Sketcher.Constraint("Coincident", 5, 2, 6, 1))
sketch6.addConstraint(Sketcher.Constraint("Coincident", 6, 2, 7, 1))
sketch6.addConstraint(Sketcher.Constraint("Coincident", 7, 2, 4, 1))
sketch6.addConstraint(Sketcher.Constraint("Coincident", 8, 2, 9, 1))
sketch6.addConstraint(Sketcher.Constraint("Coincident", 9, 2, 10, 1))
sketch6.addConstraint(Sketcher.Constraint("Coincident", 10, 2, 11, 1))
sketch6.addConstraint(Sketcher.Constraint("Coincident", 11, 2, 8, 1))
sketch6.addConstraint(Sketcher.Constraint("Coincident", 12, 2, 13, 1))
sketch6.addConstraint(Sketcher.Constraint("Coincident", 13, 2, 14, 1))
sketch6.addConstraint(Sketcher.Constraint("Coincident", 14, 2, 15, 1))
sketch6.addConstraint(Sketcher.Constraint("Coincident", 15, 2, 12, 1))
sketch6.addConstraint(Sketcher.Constraint("Coincident", 16, 2, 17, 1))
sketch6.addConstraint(Sketcher.Constraint("Coincident", 17, 2, 18, 1))
sketch6.addConstraint(Sketcher.Constraint("Coincident", 18, 2, 19, 1))
sketch6.addConstraint(Sketcher.Constraint("Coincident", 19, 2, 16, 1))
sketch6.addConstraint(Sketcher.Constraint("Coincident", 20, 2, 21, 1))
sketch6.addConstraint(Sketcher.Constraint("Coincident", 21, 2, 22, 1))
sketch6.addConstraint(Sketcher.Constraint("Coincident", 22, 2, 23, 1))
sketch6.addConstraint(Sketcher.Constraint("Coincident", 23, 2, 20, 1))
sketch6.addConstraint(Sketcher.Constraint("Coincident", 24, 2, 25, 1))
sketch6.addConstraint(Sketcher.Constraint("Coincident", 25, 2, 26, 1))
sketch6.addConstraint(Sketcher.Constraint("Coincident", 26, 2, 27, 1))
sketch6.addConstraint(Sketcher.Constraint("Coincident", 27, 2, 24, 1))
sketch6.addConstraint(Sketcher.Constraint("Coincident", 28, 2, 29, 1))
sketch6.addConstraint(Sketcher.Constraint("Coincident", 29, 2, 30, 1))
sketch6.addConstraint(Sketcher.Constraint("Coincident", 30, 2, 31, 1))
sketch6.addConstraint(Sketcher.Constraint("Coincident", 31, 2, 28, 1))
sketch6.addConstraint(Sketcher.Constraint("Vertical", 0))
sketch6.addConstraint(Sketcher.Constraint("Horizontal", 1))
sketch6.addConstraint(Sketcher.Constraint("Vertical", 2))
sketch6.addConstraint(Sketcher.Constraint("Horizontal", 3))
sketch6.addConstraint(Sketcher.Constraint("Vertical", 4))
sketch6.addConstraint(Sketcher.Constraint("Horizontal", 5))
sketch6.addConstraint(Sketcher.Constraint("Vertical", 6))
sketch6.addConstraint(Sketcher.Constraint("Horizontal", 7))
sketch6.addConstraint(Sketcher.Constraint("Vertical", 8))
sketch6.addConstraint(Sketcher.Constraint("Horizontal", 9))
sketch6.addConstraint(Sketcher.Constraint("Vertical", 10))
sketch6.addConstraint(Sketcher.Constraint("Horizontal", 11))
sketch6.addConstraint(Sketcher.Constraint("Vertical", 12))
sketch6.addConstraint(Sketcher.Constraint("Horizontal", 13))
sketch6.addConstraint(Sketcher.Constraint("Vertical", 14))
sketch6.addConstraint(Sketcher.Constraint("Horizontal", 15))
sketch6.addConstraint(Sketcher.Constraint("Vertical", 16))
sketch6.addConstraint(Sketcher.Constraint("Horizontal", 17))
sketch6.addConstraint(Sketcher.Constraint("Vertical", 18))
sketch6.addConstraint(Sketcher.Constraint("Horizontal", 19))
sketch6.addConstraint(Sketcher.Constraint("Vertical", 20))
sketch6.addConstraint(Sketcher.Constraint("Horizontal", 21))
sketch6.addConstraint(Sketcher.Constraint("Vertical", 22))
sketch6.addConstraint(Sketcher.Constraint("Horizontal", 23))
sketch6.addConstraint(Sketcher.Constraint("Vertical", 24))
sketch6.addConstraint(Sketcher.Constraint("Horizontal", 25))
sketch6.addConstraint(Sketcher.Constraint("Vertical", 26))
sketch6.addConstraint(Sketcher.Constraint("Horizontal", 27))
sketch6.addConstraint(Sketcher.Constraint("Vertical", 28))
sketch6.addConstraint(Sketcher.Constraint("Horizontal", 29))
sketch6.addConstraint(Sketcher.Constraint("Vertical", 30))
sketch6.addConstraint(Sketcher.Constraint("Horizontal", 31))
sketch6.addConstraint(Sketcher.Constraint("Symmetric", 2, 2, 16, 2, -1, 1))
sketch6.addConstraint(Sketcher.Constraint("Symmetric", 0, 2, 18, 2, -1, 1))
sketch6.addConstraint(Sketcher.Constraint("Symmetric", 6, 2, 20, 2, -1, 1))
sketch6.addConstraint(Sketcher.Constraint("Symmetric", 4, 2, 22, 2, -1, 1))
sketch6.addConstraint(Sketcher.Constraint("Symmetric", 10, 2, 24, 2, -1, 1))
sketch6.addConstraint(Sketcher.Constraint("Symmetric", 8, 2, 26, 2, -1, 1))
sketch6.addConstraint(Sketcher.Constraint("Symmetric", 14, 2, 28, 2, -1, 1))
sketch6.addConstraint(Sketcher.Constraint("Symmetric", 12, 2, 30, 2, -1, 1))
sketch6.addConstraint(Sketcher.Constraint("Symmetric", 13, 2, 16, 2, -2))
sketch6.addConstraint(Sketcher.Constraint("Symmetric", 15, 2, 18, 2, -2))
sketch6.addConstraint(Sketcher.Constraint("Symmetric", 9, 2, 20, 2, -2))
sketch6.addConstraint(Sketcher.Constraint("Symmetric", 11, 2, 22, 2, -2))
sketch6.addConstraint(Sketcher.Constraint("Vertical", 3, 2, 4, 2))
sketch6.addConstraint(Sketcher.Constraint("Vertical", 2, 2, 5, 2))
sketch6.addConstraint(Sketcher.Constraint("Equal", 2, 4))
sketch6.addConstraint(Sketcher.Constraint("DistanceX", 1, 1, 1, 2, Q("4 mm")))
sketch6.addConstraint(Sketcher.Constraint("DistanceY", 0, 2, 0, 1, Q("2 mm")))
sketch6.addConstraint(Sketcher.Constraint("DistanceX", 0, 2, -1, 1, Q("95.4 mm")))
sketch6.addConstraint(Sketcher.Constraint("DistanceY", 3, 2, 4, 2, Q("19.5 mm")))
sketch6.addConstraint(Sketcher.Constraint("DistanceY", 0, 2, -1, 1, Q("58.874898 mm")))
sketch6.setExpression("Constraints[79]", "Params.sketch6_width")
sketch6.setExpression("Constraints[80]", "Params.sketch6_height")
pad2 = body.newObject("PartDesign::Pad", "Pad001")
pad2.Profile = sketch6
pad2.setExpression("Length", "Params.pad2_length")

sketch7 = body.newObject("Sketcher::SketchObject", "Sketch006")
sketch7.AttachmentSupport = (doc.getObject("XZ_Plane"), [""])
sketch7.MapMode = "FlatFace"
sketch7.AttachmentOffset = App.Placement(App.Vector(0, 0, 58.874898), App.Rotation())
sketch7.addGeometry(Part.Circle(App.Vector(-93.4, 22.5, 0), App.Vector(0, 0, 1), 1.5), False)
sketch7.addGeometry(Part.Circle(App.Vector(93.4, 22.5, 0), App.Vector(0, 0, 1), 1.5), False)
sketch7.addConstraint(Sketcher.Constraint("Equal", 0, 1))
sketch7.addConstraint(Sketcher.Constraint("Symmetric", 0, 3, 1, 3, -2))
sketch7.addConstraint(Sketcher.Constraint("Diameter", 0, Q("3 mm")))
sketch7.addConstraint(Sketcher.Constraint("DistanceX", 0, 3, -1, 1, Q("93.4 mm")))
sketch7.addConstraint(Sketcher.Constraint("DistanceY", -1, 1, 0, 3, Q("22.52 mm")))
sketch7.setExpression("Constraints[2]", "Params.sketch7_diameter")
pocket5 = body.newObject("PartDesign::Pocket", "Pocket004")
pocket5.Profile = sketch7
pocket5.Type = "ThroughAll"
body2 = doc.addObject("PartDesign::Body", "Body001")

sketch8 = body2.newObject("Sketcher::SketchObject", "Sketch007")
sketch8.AttachmentSupport = (doc.getObject("XY_Plane001"), [""])
sketch8.MapMode = "FlatFace"
sketch8.addGeometry(Part.LineSegment(App.Vector(119, 3, 0), App.Vector(119, -20, 0)), False)
sketch8.addGeometry(Part.LineSegment(App.Vector(119, -20, 0), App.Vector(106, -20, 0)), False)
sketch8.addGeometry(Part.LineSegment(App.Vector(106, -20, 0), App.Vector(106, 3, 0)), False)
sketch8.addGeometry(Part.LineSegment(App.Vector(106, 3, 0), App.Vector(119, 3, 0)), False)
sketch8.addConstraint(Sketcher.Constraint("Coincident", 0, 2, 1, 1))
sketch8.addConstraint(Sketcher.Constraint("Coincident", 1, 2, 2, 1))
sketch8.addConstraint(Sketcher.Constraint("Coincident", 2, 2, 3, 1))
sketch8.addConstraint(Sketcher.Constraint("Coincident", 3, 2, 0, 1))
sketch8.addConstraint(Sketcher.Constraint("Vertical", 0))
sketch8.addConstraint(Sketcher.Constraint("Horizontal", 1))
sketch8.addConstraint(Sketcher.Constraint("Vertical", 2))
sketch8.addConstraint(Sketcher.Constraint("Horizontal", 3))
sketch8.addConstraint(Sketcher.Constraint("DistanceX", 1, 2, 1, 1, Q("12.8 mm")))
sketch8.addConstraint(Sketcher.Constraint("DistanceY", 0, 2, 0, 1, Q("22.9 mm")))
sketch8.addConstraint(Sketcher.Constraint("DistanceY", 0, 2, -1, 1, Q("20.071942 mm")))
sketch8.addConstraint(Sketcher.Constraint("DistanceX", -1, 1, 0, 2, Q("118.926314 mm")))
sketch8.setExpression("Constraints[8]", "Params.sketch8_width")
sketch8.setExpression("Constraints[9]", "Params.sketch8_height")
pad3 = body2.newObject("PartDesign::Pad", "Pad002")
pad3.Profile = sketch8
pad3.setExpression("Length", "Params.pad3_length")
pad3.Reversed = True

doc.recompute()
